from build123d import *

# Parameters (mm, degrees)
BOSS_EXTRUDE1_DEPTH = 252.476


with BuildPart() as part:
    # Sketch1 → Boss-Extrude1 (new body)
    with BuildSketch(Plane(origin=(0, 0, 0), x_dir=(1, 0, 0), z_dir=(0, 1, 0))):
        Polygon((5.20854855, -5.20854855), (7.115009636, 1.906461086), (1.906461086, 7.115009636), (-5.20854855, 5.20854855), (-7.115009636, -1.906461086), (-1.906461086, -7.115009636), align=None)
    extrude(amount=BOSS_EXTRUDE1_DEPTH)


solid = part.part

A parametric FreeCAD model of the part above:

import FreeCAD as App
import Part
import Sketcher
from FreeCAD import Vector
Q = App.Units.Quantity


def add_polygon(sketch, points):
    """Adds a closed chain of lines whose ends are joined by coincident constraints."""
    first, n = sketch.GeometryCount, len(points)
    for a, b in zip(points, points[1:] + points[:1]):
        sketch.addGeometry(Part.LineSegment(App.Vector(*a, 0), App.Vector(*b, 0)), False)
    for i in range(n):
        sketch.addConstraint(Sketcher.Constraint("Coincident", first + i, 2, first + (i + 1) % n, 1))

doc = App.newDocument("Part")
body = doc.addObject("PartDesign::Body", "Body")

# Sketch on XZ plane
sketch1 = body.newObject("Sketcher::SketchObject", "Sketch")
sketch1.AttachmentSupport = (doc.getObject("XZ_Plane"), [""])
sketch1.MapMode = "FlatFace"
add_polygon(sketch1, [(5.208549, 5.208549), (7.11501, -1.906461), (1.906461, -7.11501), (-5.208549, -5.208549), (-7.11501, 1.906461), (-1.906461, 7.11501)])  # lines 0-5
sketch1.addConstraint(Sketcher.Constraint("Symmetric", 0, 2, 3, 2, -1, 1))
sketch1.addConstraint(Sketcher.Constraint("Symmetric", 1, 2, 4, 2, -1, 1))
sketch1.addConstraint(Sketcher.Constraint("Symmetric", 2, 2, 5, 2, -1, 1))
sketch1.addConstraint(Sketcher.Constraint("Equal", 0, 1))
sketch1.addConstraint(Sketcher.Constraint("Equal", 1, 2))
sketch1.addConstraint(Sketcher.Constraint("Angle", 0, Q("-75 deg")))
sketch1.addConstraint(Sketcher.Constraint("Angle", 1, Q("-135 deg")))
sketch1.addConstraint(Sketcher.Constraint("Angle", 2, Q("165 deg")))
sketch1.addConstraint(Sketcher.Constraint("Distance", 0, Q("0.29 in")))
pad1 = body.newObject("PartDesign::Pad", "Pad")
pad1.Profile = sketch1
pad1.Length = Q("9.94 in")
pad1.Reversed = True

doc.recompute()
